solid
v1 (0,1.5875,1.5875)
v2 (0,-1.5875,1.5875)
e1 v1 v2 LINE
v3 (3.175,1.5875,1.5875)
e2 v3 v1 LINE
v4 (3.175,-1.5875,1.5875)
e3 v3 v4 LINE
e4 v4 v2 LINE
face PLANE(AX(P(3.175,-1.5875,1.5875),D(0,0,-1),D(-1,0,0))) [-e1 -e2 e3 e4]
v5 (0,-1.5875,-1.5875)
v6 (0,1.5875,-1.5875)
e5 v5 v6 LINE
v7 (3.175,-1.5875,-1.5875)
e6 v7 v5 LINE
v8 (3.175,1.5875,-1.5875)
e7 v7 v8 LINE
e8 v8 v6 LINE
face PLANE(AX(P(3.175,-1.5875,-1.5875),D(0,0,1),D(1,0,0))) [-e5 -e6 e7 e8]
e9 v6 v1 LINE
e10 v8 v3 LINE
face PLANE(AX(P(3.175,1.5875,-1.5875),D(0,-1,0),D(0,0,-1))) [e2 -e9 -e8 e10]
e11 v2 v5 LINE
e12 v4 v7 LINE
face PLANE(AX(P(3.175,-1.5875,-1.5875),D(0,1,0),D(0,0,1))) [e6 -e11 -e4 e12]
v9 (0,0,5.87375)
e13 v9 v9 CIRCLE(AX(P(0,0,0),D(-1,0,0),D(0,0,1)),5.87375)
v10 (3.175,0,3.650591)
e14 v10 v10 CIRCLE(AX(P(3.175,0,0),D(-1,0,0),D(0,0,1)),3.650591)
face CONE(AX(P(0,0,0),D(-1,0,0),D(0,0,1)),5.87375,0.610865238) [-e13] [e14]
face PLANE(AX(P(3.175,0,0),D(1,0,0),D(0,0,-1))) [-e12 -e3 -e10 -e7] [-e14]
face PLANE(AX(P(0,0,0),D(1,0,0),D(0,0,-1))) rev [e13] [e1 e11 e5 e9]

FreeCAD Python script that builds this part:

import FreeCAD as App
import Part
import Sketcher
Q = App.Units.Quantity


def add_polygon(sketch, points):
    """Adds a closed chain of lines whose ends are joined by coincident constraints."""
    first, n = sketch.GeometryCount, len(points)
    for a, b in zip(points, points[1:] + points[:1]):
        sketch.addGeometry(Part.LineSegment(App.Vector(*a, 0), App.Vector(*b, 0)), False)
    for i in range(n):
        sketch.addConstraint(Sketcher.Constraint("Coincident", first + i, 2, first + (i + 1) % n, 1))

doc = App.newDocument("Part")
body = doc.addObject("PartDesign::Body", "Body")

sketch1 = body.newObject("Sketcher::SketchObject", "Sketch")
sketch1.AttachmentSupport = (doc.getObject("YZ_Plane"), [""])
sketch1.MapMode = "FlatFace"
sketch1.addGeometry(Part.Circle(App.Vector(0, 0, 0), App.Vector(0, 0, 1), 5.87375), False)
add_polygon(sketch1, [(-1.5875, -1.5875), (-1.5875, 1.5875), (1.5875, 1.5875), (1.5875, -1.5875)])
sketch1.addConstraint(Sketcher.Constraint("Vertical", 1))
sketch1.addConstraint(Sketcher.Constraint("Horizontal", 2))
sketch1.addConstraint(Sketcher.Constraint("Vertical", 3))
sketch1.addConstraint(Sketcher.Constraint("Horizontal", 4))
sketch1.addConstraint(Sketcher.Constraint("Coincident", 0, 3, -1, 1))
sketch1.addConstraint(Sketcher.Constraint("Symmetric", 1, 2, 3, 2, -1, 1))
sketch1.addConstraint(Sketcher.Constraint("Equal", 4, 1))
sketch1.addConstraint(Sketcher.Constraint("Diameter", 0, Q("0.4625 in")))
sketch1.addConstraint(Sketcher.Constraint("DistanceX", 2, 1, 2, 2, Q("0.125 in")))
pad1 = body.newObject("PartDesign::Pad", "Pad")
pad1.Profile = sketch1
pad1.Length = Q("0.125 in")

sketch2 = body.newObject("Sketcher::SketchObject", "Sketch001")
sketch2.AttachmentSupport = (doc.getObject("XY_Plane"), [""])
sketch2.MapMode = "FlatFace"
add_polygon(sketch2, [(3.175, 5.87375), (0, 5.87375), (3.175, 3.650591)])
sketch2.addConstraint(Sketcher.Constraint("Horizontal", 0))
sketch2.addConstraint(Sketcher.Constraint("Vertical", 2))
sketch2.addConstraint(Sketcher.Constraint("PointOnObject", 0, 2, -2))
sketch2.addConstraint(Sketcher.Constraint("Angle", 1, Q("-35 deg")))
sketch2.addConstraint(Sketcher.Constraint("DistanceX", 0, 2, 0, 1, Q("0.125 in")))
sketch2.addConstraint(Sketcher.Constraint("DistanceY", -1, 1, 0, 2, 5.87375))
groove = body.newObject("PartDesign::Groove", "Groove")
groove.Profile = sketch2
groove.ReferenceAxis = (sketch2, ["H_Axis"])
groove.Angle = 360

doc.recompute()
